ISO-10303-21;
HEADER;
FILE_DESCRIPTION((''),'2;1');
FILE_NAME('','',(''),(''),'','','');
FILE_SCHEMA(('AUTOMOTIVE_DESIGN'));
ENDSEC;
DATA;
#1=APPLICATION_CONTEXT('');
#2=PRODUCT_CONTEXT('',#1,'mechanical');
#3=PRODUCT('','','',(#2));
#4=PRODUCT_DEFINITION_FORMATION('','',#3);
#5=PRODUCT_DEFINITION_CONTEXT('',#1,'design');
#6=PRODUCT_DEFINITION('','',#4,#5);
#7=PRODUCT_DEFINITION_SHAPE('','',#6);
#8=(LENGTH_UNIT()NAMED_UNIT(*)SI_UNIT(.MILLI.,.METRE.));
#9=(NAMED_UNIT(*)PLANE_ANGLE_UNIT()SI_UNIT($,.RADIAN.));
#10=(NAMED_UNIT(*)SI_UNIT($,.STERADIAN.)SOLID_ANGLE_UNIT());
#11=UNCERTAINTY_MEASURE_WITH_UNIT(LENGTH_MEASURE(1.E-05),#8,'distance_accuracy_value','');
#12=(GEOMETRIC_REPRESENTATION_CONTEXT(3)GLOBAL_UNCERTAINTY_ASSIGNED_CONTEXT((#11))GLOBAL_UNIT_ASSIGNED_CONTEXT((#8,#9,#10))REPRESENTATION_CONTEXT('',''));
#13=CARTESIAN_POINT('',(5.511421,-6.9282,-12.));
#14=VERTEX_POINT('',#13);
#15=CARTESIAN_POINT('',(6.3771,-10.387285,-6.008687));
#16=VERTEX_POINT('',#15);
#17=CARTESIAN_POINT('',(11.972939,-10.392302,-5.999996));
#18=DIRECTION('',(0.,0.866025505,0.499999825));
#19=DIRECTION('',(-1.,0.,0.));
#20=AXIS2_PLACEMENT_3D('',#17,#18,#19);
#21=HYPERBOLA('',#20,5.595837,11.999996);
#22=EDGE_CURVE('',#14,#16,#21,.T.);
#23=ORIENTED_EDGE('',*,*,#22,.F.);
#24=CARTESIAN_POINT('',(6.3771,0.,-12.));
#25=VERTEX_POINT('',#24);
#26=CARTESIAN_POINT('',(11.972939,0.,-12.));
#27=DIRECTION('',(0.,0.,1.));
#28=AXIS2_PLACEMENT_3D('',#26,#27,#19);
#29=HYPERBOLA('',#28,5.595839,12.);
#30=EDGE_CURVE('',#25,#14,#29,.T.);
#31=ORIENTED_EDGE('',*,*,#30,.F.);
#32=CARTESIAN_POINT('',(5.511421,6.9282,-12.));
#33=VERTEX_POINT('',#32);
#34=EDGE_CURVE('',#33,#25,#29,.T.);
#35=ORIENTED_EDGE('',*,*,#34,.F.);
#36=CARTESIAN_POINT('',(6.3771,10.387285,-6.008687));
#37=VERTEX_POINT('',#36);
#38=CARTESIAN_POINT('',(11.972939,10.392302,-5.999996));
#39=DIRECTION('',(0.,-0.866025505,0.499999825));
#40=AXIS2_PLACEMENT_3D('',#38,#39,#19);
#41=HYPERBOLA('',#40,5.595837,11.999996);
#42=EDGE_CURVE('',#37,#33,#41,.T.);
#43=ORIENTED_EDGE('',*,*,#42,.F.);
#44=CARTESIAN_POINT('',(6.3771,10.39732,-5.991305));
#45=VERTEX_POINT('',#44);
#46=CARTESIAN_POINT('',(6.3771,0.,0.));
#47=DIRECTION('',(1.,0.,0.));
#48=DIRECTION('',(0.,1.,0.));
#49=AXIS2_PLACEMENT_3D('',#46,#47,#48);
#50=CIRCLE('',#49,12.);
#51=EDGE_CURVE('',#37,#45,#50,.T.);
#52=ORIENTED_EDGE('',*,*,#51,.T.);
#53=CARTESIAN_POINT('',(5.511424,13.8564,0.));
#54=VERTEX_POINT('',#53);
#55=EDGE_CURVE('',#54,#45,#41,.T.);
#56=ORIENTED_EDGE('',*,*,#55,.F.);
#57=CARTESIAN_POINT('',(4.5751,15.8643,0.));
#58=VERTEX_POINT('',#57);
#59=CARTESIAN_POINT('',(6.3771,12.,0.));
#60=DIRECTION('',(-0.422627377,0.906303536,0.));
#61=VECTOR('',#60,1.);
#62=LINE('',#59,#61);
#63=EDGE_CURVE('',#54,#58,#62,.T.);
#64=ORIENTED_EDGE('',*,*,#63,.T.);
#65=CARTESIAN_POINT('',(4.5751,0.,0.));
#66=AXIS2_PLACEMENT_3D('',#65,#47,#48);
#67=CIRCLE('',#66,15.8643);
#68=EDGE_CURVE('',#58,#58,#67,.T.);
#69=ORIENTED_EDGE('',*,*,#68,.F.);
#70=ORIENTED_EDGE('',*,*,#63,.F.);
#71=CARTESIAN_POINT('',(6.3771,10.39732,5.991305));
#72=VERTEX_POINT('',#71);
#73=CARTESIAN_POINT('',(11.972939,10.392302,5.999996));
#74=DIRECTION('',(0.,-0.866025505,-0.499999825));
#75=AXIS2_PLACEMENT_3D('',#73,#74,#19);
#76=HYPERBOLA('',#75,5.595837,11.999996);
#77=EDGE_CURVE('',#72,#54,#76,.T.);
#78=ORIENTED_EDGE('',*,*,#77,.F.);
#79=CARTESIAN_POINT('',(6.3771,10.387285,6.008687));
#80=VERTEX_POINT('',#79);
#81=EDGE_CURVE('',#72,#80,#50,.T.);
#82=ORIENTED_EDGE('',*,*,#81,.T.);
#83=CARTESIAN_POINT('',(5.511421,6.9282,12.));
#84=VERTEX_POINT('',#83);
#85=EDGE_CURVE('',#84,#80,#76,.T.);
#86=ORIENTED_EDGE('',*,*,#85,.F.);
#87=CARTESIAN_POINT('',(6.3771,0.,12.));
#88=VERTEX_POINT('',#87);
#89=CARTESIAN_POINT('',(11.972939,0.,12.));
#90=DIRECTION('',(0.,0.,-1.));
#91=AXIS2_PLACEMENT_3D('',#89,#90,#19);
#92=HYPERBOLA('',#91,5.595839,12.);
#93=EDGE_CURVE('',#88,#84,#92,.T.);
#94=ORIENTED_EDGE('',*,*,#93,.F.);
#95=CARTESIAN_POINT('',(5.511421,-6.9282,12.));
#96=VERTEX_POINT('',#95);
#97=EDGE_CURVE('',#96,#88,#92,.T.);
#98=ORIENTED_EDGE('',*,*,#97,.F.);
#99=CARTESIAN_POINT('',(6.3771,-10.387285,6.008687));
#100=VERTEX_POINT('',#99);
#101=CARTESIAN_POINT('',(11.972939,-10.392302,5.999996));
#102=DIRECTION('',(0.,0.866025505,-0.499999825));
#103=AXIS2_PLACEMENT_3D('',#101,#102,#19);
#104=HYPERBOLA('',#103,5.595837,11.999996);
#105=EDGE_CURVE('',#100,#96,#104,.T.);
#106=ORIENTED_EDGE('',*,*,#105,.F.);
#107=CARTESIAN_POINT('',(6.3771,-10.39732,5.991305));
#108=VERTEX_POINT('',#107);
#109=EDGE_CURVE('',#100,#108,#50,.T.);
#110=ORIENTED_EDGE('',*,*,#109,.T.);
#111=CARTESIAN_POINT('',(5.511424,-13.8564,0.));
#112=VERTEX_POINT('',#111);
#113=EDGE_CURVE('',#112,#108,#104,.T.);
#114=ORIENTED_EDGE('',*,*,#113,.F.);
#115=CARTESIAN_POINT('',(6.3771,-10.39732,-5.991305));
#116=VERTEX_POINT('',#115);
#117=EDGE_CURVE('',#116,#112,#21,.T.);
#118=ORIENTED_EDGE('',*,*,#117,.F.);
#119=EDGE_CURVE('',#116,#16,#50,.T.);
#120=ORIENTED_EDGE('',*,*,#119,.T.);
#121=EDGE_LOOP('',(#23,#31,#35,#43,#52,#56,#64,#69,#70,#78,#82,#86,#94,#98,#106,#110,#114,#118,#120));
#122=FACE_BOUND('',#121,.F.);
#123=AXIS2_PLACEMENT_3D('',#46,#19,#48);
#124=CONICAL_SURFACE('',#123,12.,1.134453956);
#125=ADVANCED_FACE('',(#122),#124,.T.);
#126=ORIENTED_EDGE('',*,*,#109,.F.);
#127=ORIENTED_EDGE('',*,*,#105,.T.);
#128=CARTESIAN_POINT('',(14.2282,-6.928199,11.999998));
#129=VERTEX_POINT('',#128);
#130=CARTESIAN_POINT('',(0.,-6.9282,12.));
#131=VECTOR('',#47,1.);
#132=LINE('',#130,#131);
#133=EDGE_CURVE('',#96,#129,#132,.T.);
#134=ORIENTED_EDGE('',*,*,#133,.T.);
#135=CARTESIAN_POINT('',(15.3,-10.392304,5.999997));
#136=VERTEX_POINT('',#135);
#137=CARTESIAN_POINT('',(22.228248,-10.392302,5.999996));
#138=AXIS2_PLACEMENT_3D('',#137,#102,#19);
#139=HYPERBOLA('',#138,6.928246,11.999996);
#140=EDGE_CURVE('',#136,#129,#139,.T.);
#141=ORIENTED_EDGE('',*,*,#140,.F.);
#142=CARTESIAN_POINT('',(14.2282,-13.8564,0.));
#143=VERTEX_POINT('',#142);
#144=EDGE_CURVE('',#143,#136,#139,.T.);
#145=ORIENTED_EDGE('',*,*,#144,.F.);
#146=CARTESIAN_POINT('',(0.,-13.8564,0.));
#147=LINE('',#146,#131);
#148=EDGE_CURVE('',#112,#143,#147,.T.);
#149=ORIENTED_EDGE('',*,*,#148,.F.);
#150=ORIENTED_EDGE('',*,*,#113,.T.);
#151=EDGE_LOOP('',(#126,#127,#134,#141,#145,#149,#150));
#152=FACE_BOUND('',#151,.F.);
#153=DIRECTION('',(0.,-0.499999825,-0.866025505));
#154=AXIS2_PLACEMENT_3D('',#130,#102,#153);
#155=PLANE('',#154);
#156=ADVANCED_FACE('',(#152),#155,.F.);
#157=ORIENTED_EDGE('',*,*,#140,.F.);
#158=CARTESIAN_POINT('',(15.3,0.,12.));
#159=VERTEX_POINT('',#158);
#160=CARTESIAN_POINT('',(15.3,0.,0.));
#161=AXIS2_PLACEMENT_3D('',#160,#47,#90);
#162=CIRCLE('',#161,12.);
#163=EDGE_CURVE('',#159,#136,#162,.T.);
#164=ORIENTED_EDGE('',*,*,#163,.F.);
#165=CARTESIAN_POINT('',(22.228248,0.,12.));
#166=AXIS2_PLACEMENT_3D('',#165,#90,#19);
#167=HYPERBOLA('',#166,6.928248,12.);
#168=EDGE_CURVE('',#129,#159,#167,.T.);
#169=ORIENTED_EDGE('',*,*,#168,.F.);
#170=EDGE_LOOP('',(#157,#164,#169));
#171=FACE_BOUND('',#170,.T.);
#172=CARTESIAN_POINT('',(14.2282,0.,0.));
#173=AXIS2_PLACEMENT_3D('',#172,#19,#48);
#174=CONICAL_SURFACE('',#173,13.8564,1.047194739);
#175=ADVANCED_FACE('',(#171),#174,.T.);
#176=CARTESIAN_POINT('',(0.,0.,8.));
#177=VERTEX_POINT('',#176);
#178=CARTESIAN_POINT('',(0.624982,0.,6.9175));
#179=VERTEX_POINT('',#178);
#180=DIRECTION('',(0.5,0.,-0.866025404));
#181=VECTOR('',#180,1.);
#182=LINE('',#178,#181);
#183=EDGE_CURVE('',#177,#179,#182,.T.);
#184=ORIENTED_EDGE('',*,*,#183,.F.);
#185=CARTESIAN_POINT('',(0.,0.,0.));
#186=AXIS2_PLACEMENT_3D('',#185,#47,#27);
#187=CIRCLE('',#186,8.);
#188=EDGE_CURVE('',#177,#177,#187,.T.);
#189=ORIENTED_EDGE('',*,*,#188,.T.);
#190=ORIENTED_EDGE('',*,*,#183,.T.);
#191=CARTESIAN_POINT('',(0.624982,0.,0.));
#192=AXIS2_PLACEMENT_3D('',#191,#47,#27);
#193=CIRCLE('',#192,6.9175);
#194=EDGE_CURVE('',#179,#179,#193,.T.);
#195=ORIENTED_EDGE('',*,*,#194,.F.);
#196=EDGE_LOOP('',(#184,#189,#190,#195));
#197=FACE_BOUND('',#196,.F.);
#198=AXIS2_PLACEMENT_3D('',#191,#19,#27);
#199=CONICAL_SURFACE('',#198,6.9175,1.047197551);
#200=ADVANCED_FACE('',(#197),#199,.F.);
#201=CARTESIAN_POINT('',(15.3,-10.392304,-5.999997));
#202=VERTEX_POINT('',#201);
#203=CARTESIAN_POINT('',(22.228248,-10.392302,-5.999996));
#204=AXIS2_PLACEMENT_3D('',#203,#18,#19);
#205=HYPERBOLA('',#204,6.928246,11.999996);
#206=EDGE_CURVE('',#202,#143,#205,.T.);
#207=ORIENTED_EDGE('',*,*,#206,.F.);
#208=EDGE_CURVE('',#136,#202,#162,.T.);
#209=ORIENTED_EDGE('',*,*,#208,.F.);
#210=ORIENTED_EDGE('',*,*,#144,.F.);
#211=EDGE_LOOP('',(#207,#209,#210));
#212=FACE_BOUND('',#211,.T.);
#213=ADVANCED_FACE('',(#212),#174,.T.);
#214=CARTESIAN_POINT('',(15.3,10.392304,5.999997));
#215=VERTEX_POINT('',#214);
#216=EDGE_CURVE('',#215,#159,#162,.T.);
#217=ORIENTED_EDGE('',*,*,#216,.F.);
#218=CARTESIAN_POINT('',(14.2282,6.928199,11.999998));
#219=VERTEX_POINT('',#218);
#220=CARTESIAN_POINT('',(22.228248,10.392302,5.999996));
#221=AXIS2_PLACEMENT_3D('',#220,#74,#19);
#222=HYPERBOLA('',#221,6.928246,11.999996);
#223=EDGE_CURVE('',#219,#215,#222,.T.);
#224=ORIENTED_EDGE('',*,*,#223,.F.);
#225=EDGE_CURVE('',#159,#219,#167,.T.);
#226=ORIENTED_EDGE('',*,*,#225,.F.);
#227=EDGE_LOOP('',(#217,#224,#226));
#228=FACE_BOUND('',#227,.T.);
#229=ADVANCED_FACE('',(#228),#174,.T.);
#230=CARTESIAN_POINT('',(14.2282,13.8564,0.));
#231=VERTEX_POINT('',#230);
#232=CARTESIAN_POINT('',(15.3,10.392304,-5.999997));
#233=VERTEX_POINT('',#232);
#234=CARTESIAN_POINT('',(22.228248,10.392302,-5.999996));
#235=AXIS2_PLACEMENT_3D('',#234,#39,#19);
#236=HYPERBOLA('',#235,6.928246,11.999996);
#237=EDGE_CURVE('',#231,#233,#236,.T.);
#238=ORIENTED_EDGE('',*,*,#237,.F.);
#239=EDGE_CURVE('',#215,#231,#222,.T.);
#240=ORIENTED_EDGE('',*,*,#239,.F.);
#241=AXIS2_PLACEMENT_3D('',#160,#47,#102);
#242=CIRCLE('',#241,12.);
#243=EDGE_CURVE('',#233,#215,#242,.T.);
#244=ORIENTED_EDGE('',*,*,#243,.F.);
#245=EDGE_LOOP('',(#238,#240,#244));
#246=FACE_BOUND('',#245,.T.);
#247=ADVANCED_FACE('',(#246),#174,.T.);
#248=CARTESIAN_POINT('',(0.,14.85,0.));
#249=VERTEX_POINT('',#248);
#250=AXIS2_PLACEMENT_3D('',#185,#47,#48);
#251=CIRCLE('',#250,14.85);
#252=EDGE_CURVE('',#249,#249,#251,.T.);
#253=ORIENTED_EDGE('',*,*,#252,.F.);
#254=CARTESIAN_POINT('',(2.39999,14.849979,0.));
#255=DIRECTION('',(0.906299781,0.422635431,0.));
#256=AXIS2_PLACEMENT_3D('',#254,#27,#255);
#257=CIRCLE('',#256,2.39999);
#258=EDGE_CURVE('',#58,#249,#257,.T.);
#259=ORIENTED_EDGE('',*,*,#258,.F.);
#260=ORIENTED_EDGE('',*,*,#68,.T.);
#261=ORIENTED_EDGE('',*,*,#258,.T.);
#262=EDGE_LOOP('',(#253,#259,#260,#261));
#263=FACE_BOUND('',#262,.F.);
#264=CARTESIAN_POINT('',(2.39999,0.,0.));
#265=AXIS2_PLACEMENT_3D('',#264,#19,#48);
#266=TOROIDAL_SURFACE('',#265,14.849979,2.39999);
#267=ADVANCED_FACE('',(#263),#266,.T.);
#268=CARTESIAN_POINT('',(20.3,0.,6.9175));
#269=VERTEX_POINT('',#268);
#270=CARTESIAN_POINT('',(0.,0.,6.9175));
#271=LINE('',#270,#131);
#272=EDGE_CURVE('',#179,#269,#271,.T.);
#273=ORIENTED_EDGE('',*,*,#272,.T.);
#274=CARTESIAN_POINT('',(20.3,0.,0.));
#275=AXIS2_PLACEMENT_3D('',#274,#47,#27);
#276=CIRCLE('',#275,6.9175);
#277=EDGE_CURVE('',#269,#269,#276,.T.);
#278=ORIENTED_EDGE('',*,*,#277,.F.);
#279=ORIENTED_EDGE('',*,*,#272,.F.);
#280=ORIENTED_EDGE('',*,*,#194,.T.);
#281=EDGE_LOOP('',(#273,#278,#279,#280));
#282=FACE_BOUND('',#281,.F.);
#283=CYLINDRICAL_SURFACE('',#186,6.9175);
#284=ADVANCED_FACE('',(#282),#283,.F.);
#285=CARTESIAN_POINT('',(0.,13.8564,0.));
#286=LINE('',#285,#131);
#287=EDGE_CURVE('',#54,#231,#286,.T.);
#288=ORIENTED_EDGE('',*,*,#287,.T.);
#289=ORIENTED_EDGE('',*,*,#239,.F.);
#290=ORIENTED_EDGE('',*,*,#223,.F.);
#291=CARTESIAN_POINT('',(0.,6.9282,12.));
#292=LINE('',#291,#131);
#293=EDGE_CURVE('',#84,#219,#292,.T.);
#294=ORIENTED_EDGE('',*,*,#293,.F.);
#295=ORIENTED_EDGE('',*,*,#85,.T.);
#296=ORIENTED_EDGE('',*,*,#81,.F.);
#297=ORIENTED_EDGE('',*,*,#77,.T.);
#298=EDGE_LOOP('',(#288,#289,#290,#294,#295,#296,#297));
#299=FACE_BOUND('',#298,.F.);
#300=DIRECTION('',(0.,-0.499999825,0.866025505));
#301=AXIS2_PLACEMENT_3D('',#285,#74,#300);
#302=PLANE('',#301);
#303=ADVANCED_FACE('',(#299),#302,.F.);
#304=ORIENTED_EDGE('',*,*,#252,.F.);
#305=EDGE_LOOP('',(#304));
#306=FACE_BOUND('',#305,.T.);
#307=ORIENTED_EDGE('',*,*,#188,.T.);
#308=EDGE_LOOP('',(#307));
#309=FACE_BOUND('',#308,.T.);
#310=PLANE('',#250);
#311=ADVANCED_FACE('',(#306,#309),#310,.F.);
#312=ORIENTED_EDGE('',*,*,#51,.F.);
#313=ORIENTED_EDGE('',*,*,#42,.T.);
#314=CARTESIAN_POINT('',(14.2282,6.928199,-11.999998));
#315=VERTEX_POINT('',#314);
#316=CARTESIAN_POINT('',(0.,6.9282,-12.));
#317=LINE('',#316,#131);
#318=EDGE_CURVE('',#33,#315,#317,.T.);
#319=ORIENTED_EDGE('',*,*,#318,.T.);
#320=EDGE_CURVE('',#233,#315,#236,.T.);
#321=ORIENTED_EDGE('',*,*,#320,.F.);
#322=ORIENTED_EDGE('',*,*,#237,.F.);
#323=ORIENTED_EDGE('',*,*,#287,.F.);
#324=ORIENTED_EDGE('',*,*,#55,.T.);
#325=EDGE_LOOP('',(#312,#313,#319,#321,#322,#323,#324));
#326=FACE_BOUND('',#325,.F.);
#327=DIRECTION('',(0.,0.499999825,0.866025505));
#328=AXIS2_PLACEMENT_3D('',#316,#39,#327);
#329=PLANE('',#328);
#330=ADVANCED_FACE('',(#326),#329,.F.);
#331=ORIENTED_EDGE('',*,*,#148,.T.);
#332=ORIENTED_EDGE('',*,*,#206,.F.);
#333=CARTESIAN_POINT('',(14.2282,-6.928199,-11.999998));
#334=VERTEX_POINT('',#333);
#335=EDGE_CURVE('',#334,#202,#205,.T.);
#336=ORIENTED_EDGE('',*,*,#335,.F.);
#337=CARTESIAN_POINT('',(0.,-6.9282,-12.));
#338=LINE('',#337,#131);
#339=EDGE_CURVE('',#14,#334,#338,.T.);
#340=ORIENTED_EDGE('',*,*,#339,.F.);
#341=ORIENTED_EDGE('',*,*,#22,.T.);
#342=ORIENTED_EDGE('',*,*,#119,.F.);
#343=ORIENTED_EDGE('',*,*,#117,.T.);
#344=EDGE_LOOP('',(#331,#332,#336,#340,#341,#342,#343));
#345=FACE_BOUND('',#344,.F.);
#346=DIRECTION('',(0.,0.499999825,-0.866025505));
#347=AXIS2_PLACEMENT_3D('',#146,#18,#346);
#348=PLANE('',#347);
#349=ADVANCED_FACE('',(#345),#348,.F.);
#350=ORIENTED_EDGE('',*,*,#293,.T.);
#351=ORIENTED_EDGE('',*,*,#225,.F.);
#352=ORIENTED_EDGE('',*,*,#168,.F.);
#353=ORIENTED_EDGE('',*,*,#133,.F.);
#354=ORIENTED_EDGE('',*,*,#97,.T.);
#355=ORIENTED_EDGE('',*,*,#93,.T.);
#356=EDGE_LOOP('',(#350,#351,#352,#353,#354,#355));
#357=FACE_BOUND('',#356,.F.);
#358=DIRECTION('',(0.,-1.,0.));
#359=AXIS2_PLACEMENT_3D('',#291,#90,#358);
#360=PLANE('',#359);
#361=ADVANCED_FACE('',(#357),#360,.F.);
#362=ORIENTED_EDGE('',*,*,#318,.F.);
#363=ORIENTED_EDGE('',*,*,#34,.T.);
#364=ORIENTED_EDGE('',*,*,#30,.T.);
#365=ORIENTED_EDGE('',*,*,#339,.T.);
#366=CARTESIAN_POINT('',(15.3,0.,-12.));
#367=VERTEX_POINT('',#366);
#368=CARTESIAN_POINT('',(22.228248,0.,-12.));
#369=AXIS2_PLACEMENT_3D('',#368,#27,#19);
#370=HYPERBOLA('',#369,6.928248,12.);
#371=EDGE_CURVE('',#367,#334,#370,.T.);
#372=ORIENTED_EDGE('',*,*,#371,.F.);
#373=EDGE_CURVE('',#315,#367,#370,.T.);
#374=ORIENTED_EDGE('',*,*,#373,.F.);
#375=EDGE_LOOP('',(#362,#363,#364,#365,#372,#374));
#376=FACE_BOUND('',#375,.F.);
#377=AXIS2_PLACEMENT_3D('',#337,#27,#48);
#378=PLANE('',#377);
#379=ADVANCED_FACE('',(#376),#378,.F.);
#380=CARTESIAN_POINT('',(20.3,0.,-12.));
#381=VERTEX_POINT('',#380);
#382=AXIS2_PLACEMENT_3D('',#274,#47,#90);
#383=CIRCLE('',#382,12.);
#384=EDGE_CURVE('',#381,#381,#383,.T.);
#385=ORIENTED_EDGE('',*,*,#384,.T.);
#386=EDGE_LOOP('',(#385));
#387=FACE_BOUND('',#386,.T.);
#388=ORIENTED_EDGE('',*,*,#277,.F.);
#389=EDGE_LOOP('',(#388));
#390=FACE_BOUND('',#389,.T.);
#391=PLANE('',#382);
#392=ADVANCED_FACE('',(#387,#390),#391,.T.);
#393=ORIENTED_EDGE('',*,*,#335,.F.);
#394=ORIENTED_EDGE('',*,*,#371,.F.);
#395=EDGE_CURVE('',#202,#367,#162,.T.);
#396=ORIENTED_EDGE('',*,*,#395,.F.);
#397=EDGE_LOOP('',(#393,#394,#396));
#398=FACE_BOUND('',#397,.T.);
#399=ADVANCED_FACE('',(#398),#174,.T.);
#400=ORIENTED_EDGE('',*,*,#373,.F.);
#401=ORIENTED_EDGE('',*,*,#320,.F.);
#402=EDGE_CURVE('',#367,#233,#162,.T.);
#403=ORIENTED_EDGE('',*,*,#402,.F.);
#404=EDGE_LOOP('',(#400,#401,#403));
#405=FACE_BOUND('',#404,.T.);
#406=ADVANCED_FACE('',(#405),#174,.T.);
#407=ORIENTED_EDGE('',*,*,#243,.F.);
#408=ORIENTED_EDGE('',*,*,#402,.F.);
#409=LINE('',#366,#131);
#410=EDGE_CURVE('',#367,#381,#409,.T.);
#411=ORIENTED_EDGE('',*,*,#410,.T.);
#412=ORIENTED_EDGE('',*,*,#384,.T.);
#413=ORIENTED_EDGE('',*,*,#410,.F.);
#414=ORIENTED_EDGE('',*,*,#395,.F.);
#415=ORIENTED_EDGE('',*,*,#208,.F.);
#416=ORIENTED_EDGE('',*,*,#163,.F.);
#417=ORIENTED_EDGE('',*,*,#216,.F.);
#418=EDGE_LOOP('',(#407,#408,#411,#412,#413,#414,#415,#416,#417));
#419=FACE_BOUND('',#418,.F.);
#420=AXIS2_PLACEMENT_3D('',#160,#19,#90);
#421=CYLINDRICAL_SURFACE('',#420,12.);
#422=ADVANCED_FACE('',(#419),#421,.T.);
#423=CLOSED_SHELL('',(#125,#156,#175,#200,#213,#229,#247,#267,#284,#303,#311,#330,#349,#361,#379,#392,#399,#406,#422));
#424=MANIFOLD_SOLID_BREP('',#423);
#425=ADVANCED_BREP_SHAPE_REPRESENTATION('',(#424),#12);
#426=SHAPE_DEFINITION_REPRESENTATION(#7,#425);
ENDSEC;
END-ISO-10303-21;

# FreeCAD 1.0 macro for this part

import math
import FreeCAD as App
import Part
import Sketcher

V = App.Vector
Q = App.Units.Quantity


def edges_at(feature, points):
    """Names of the edges that pass closest to the given points."""
    edges = feature.Shape.Edges
    near = lambda p: min(range(len(edges)), key=lambda i: edges[i].distToShape(Part.Vertex(*p))[0])
    return sorted({f"Edge{near(p) + 1}" for p in points})


def add_polygon(sketch, points):
    """Adds a closed chain of lines whose ends are joined by coincident constraints."""
    first, n = sketch.GeometryCount, len(points)
    for a, b in zip(points, points[1:] + points[:1]):
        sketch.addGeometry(Part.LineSegment(App.Vector(*a, 0), App.Vector(*b, 0)), False)
    for i in range(n):
        sketch.addConstraint(Sketcher.Constraint("Coincident", first + i, 2, first + (i + 1) % n, 1))

doc = App.newDocument("Part")
body = doc.addObject("PartDesign::Body", "Body")

# Sketch on XY plane
sketch1 = body.newObject("Sketcher::SketchObject", "Sketch")
sketch1.AttachmentSupport = (doc.getObject("XY_Plane"), [""])
sketch1.MapMode = "FlatFace"
sketch1.addGeometry([
    Part.LineSegment(V(0, 14.8, 0), V(0, 0, 0)),  # 0
    Part.LineSegment(V(0, 0, 0), V(6.4, 0, 0)),  # 1
    Part.LineSegment(V(6.4, 0, 0), V(6.4, 12, 0)),  # 2
    Part.LineSegment(V(6.4, 12, 0), V(4.6, 15.9, 0)),  # 3
    Part.ArcOfCircle(Part.Circle(V(2.4, 14.8, 0), V(0, 0, 1), 2.4), math.radians(25), math.radians(180)),  # 4
], False)
sketch1.addConstraint([
    Sketcher.Constraint("Coincident", 0, 2, 1, 1),
    Sketcher.Constraint("Coincident", 1, 2, 2, 1),
    Sketcher.Constraint("Coincident", 2, 2, 3, 1),
    Sketcher.Constraint("Tangent", 3, 2, 4, 1),
    Sketcher.Constraint("Tangent", 4, 2, 0, 1),
    Sketcher.Constraint("Vertical", 0),
    Sketcher.Constraint("Horizontal", 1),
    Sketcher.Constraint("Vertical", 2),
    Sketcher.Constraint("Coincident", 0, 2, -1, 1),
    Sketcher.Constraint("Radius", 4, 2.4),
    Sketcher.Constraint("DistanceY", 2, 1, 2, 2, 12.0),
    Sketcher.Constraint("Angle", 3, Q("115.0006 deg")),
    Sketcher.Constraint("DistanceY", 0, 2, 0, 1, 14.85),
])
revolution = body.newObject("PartDesign::Revolution", "Revolution")
revolution.Profile = sketch1
revolution.ReferenceAxis = (sketch1, ["H_Axis"])
revolution.Angle = 360

# Sketch on YZ plane
sketch2 = body.newObject("Sketcher::SketchObject", "Sketch001")
sketch2.AttachmentSupport = (doc.getObject("YZ_Plane"), [""])
sketch2.MapMode = "FlatFace"
add_polygon(sketch2, [(7, -12), (-7, -12), (-14, 0), (-7, 12), (7, 12), (14, 0)])  # lines 0-5
sketch2.addConstraint([
    Sketcher.Constraint("Horizontal", 0),
    Sketcher.Constraint("Horizontal", 3),
    Sketcher.Constraint("Symmetric", 0, 2, 3, 2, -1, 1),
    Sketcher.Constraint("Symmetric", 1, 2, 4, 2, -1, 1),
    Sketcher.Constraint("PointOnObject", 1, 2, -1),
    Sketcher.Constraint("Parallel", 2, 5),
    Sketcher.Constraint("Vertical", 0, 2, 2, 2),
    Sketcher.Constraint("Angle", 1, Q("120 deg")),
    Sketcher.Constraint("DistanceY", 0, 2, -1, 1, 12.0),
    Sketcher.Constraint("DistanceX", 1, 2, 4, 2, 27.7128),
])
pad1 = body.newObject("PartDesign::Pad", "Pad")
pad1.Profile = sketch2
pad1.Length = 15.3

# Sketch on YZ plane
sketch3 = body.newObject("Sketcher::SketchObject", "Sketch002")
sketch3.AttachmentSupport = (doc.getObject("YZ_Plane"), [""])
sketch3.MapMode = "FlatFace"
sketch3.AttachmentOffset = App.Placement(V(0, 0, 15.3), App.Rotation())
sketch3.addGeometry(Part.Circle(V(0, 0, 0), V(0, 0, 1), 12), False)
sketch3.addConstraint([
    Sketcher.Constraint("Coincident", 0, 3, -1, 1),
    Sketcher.Constraint("Diameter", 0, 24.0),
])
pad2 = body.newObject("PartDesign::Pad", "Pad001")
pad2.Profile = sketch3
pad2.Length = 5

# Sketch on YZ plane
sketch4 = body.newObject("Sketcher::SketchObject", "Sketch003")
sketch4.AttachmentSupport = (doc.getObject("YZ_Plane"), [""])
sketch4.MapMode = "FlatFace"
sketch4.addGeometry(Part.Circle(V(0, 0, 0), V(0, 0, 1), 7), False)
sketch4.addConstraint([
    Sketcher.Constraint("Coincident", 0, 3, -1, 1),
    Sketcher.Constraint("Diameter", 0, 13.835),
])
doc.recompute()
hole = body.newObject("PartDesign::Hole", "Hole")
hole.Profile = sketch4
hole.ThreadType = "None"
hole.Diameter = 13.835
hole.DepthType = "ThroughAll"
hole.Reversed = True

# Sketch on XY plane
sketch5 = body.newObject("Sketcher::SketchObject", "Sketch004")
sketch5.AttachmentSupport = (doc.getObject("XY_Plane"), [""])
sketch5.MapMode = "FlatFace"
add_polygon(sketch5, [(15.3, 13.9), (14.2, 13.9), (15.3, 12)])  # lines 0-2
sketch5.addConstraint([
    Sketcher.Constraint("Horizontal", 0),
    Sketcher.Constraint("Vertical", 2),
    Sketcher.Constraint("Angle", 1, Q("-59.9998 deg")),
    Sketcher.Constraint("DistanceY", -1, 1, 1, 2, 12.0),
    Sketcher.Constraint("DistanceX", -1, 1, 1, 2, 15.3),
    Sketcher.Constraint("DistanceX", 0, 2, 0, 1, 1.0718),
])
groove = body.newObject("PartDesign::Groove", "Groove")
groove.Profile = sketch5
groove.ReferenceAxis = (sketch5, ["H_Axis"])
groove.Angle = 360
doc.recompute()

chamfer = body.newObject("PartDesign::Chamfer", "Chamfer")
chamfer.Base = (groove, edges_at(groove, [(0, 0, -6.918)]))
chamfer.ChamferType = "Distance and Angle"
chamfer.Size = 1.0825
chamfer.Angle = 30

doc.recompute()
